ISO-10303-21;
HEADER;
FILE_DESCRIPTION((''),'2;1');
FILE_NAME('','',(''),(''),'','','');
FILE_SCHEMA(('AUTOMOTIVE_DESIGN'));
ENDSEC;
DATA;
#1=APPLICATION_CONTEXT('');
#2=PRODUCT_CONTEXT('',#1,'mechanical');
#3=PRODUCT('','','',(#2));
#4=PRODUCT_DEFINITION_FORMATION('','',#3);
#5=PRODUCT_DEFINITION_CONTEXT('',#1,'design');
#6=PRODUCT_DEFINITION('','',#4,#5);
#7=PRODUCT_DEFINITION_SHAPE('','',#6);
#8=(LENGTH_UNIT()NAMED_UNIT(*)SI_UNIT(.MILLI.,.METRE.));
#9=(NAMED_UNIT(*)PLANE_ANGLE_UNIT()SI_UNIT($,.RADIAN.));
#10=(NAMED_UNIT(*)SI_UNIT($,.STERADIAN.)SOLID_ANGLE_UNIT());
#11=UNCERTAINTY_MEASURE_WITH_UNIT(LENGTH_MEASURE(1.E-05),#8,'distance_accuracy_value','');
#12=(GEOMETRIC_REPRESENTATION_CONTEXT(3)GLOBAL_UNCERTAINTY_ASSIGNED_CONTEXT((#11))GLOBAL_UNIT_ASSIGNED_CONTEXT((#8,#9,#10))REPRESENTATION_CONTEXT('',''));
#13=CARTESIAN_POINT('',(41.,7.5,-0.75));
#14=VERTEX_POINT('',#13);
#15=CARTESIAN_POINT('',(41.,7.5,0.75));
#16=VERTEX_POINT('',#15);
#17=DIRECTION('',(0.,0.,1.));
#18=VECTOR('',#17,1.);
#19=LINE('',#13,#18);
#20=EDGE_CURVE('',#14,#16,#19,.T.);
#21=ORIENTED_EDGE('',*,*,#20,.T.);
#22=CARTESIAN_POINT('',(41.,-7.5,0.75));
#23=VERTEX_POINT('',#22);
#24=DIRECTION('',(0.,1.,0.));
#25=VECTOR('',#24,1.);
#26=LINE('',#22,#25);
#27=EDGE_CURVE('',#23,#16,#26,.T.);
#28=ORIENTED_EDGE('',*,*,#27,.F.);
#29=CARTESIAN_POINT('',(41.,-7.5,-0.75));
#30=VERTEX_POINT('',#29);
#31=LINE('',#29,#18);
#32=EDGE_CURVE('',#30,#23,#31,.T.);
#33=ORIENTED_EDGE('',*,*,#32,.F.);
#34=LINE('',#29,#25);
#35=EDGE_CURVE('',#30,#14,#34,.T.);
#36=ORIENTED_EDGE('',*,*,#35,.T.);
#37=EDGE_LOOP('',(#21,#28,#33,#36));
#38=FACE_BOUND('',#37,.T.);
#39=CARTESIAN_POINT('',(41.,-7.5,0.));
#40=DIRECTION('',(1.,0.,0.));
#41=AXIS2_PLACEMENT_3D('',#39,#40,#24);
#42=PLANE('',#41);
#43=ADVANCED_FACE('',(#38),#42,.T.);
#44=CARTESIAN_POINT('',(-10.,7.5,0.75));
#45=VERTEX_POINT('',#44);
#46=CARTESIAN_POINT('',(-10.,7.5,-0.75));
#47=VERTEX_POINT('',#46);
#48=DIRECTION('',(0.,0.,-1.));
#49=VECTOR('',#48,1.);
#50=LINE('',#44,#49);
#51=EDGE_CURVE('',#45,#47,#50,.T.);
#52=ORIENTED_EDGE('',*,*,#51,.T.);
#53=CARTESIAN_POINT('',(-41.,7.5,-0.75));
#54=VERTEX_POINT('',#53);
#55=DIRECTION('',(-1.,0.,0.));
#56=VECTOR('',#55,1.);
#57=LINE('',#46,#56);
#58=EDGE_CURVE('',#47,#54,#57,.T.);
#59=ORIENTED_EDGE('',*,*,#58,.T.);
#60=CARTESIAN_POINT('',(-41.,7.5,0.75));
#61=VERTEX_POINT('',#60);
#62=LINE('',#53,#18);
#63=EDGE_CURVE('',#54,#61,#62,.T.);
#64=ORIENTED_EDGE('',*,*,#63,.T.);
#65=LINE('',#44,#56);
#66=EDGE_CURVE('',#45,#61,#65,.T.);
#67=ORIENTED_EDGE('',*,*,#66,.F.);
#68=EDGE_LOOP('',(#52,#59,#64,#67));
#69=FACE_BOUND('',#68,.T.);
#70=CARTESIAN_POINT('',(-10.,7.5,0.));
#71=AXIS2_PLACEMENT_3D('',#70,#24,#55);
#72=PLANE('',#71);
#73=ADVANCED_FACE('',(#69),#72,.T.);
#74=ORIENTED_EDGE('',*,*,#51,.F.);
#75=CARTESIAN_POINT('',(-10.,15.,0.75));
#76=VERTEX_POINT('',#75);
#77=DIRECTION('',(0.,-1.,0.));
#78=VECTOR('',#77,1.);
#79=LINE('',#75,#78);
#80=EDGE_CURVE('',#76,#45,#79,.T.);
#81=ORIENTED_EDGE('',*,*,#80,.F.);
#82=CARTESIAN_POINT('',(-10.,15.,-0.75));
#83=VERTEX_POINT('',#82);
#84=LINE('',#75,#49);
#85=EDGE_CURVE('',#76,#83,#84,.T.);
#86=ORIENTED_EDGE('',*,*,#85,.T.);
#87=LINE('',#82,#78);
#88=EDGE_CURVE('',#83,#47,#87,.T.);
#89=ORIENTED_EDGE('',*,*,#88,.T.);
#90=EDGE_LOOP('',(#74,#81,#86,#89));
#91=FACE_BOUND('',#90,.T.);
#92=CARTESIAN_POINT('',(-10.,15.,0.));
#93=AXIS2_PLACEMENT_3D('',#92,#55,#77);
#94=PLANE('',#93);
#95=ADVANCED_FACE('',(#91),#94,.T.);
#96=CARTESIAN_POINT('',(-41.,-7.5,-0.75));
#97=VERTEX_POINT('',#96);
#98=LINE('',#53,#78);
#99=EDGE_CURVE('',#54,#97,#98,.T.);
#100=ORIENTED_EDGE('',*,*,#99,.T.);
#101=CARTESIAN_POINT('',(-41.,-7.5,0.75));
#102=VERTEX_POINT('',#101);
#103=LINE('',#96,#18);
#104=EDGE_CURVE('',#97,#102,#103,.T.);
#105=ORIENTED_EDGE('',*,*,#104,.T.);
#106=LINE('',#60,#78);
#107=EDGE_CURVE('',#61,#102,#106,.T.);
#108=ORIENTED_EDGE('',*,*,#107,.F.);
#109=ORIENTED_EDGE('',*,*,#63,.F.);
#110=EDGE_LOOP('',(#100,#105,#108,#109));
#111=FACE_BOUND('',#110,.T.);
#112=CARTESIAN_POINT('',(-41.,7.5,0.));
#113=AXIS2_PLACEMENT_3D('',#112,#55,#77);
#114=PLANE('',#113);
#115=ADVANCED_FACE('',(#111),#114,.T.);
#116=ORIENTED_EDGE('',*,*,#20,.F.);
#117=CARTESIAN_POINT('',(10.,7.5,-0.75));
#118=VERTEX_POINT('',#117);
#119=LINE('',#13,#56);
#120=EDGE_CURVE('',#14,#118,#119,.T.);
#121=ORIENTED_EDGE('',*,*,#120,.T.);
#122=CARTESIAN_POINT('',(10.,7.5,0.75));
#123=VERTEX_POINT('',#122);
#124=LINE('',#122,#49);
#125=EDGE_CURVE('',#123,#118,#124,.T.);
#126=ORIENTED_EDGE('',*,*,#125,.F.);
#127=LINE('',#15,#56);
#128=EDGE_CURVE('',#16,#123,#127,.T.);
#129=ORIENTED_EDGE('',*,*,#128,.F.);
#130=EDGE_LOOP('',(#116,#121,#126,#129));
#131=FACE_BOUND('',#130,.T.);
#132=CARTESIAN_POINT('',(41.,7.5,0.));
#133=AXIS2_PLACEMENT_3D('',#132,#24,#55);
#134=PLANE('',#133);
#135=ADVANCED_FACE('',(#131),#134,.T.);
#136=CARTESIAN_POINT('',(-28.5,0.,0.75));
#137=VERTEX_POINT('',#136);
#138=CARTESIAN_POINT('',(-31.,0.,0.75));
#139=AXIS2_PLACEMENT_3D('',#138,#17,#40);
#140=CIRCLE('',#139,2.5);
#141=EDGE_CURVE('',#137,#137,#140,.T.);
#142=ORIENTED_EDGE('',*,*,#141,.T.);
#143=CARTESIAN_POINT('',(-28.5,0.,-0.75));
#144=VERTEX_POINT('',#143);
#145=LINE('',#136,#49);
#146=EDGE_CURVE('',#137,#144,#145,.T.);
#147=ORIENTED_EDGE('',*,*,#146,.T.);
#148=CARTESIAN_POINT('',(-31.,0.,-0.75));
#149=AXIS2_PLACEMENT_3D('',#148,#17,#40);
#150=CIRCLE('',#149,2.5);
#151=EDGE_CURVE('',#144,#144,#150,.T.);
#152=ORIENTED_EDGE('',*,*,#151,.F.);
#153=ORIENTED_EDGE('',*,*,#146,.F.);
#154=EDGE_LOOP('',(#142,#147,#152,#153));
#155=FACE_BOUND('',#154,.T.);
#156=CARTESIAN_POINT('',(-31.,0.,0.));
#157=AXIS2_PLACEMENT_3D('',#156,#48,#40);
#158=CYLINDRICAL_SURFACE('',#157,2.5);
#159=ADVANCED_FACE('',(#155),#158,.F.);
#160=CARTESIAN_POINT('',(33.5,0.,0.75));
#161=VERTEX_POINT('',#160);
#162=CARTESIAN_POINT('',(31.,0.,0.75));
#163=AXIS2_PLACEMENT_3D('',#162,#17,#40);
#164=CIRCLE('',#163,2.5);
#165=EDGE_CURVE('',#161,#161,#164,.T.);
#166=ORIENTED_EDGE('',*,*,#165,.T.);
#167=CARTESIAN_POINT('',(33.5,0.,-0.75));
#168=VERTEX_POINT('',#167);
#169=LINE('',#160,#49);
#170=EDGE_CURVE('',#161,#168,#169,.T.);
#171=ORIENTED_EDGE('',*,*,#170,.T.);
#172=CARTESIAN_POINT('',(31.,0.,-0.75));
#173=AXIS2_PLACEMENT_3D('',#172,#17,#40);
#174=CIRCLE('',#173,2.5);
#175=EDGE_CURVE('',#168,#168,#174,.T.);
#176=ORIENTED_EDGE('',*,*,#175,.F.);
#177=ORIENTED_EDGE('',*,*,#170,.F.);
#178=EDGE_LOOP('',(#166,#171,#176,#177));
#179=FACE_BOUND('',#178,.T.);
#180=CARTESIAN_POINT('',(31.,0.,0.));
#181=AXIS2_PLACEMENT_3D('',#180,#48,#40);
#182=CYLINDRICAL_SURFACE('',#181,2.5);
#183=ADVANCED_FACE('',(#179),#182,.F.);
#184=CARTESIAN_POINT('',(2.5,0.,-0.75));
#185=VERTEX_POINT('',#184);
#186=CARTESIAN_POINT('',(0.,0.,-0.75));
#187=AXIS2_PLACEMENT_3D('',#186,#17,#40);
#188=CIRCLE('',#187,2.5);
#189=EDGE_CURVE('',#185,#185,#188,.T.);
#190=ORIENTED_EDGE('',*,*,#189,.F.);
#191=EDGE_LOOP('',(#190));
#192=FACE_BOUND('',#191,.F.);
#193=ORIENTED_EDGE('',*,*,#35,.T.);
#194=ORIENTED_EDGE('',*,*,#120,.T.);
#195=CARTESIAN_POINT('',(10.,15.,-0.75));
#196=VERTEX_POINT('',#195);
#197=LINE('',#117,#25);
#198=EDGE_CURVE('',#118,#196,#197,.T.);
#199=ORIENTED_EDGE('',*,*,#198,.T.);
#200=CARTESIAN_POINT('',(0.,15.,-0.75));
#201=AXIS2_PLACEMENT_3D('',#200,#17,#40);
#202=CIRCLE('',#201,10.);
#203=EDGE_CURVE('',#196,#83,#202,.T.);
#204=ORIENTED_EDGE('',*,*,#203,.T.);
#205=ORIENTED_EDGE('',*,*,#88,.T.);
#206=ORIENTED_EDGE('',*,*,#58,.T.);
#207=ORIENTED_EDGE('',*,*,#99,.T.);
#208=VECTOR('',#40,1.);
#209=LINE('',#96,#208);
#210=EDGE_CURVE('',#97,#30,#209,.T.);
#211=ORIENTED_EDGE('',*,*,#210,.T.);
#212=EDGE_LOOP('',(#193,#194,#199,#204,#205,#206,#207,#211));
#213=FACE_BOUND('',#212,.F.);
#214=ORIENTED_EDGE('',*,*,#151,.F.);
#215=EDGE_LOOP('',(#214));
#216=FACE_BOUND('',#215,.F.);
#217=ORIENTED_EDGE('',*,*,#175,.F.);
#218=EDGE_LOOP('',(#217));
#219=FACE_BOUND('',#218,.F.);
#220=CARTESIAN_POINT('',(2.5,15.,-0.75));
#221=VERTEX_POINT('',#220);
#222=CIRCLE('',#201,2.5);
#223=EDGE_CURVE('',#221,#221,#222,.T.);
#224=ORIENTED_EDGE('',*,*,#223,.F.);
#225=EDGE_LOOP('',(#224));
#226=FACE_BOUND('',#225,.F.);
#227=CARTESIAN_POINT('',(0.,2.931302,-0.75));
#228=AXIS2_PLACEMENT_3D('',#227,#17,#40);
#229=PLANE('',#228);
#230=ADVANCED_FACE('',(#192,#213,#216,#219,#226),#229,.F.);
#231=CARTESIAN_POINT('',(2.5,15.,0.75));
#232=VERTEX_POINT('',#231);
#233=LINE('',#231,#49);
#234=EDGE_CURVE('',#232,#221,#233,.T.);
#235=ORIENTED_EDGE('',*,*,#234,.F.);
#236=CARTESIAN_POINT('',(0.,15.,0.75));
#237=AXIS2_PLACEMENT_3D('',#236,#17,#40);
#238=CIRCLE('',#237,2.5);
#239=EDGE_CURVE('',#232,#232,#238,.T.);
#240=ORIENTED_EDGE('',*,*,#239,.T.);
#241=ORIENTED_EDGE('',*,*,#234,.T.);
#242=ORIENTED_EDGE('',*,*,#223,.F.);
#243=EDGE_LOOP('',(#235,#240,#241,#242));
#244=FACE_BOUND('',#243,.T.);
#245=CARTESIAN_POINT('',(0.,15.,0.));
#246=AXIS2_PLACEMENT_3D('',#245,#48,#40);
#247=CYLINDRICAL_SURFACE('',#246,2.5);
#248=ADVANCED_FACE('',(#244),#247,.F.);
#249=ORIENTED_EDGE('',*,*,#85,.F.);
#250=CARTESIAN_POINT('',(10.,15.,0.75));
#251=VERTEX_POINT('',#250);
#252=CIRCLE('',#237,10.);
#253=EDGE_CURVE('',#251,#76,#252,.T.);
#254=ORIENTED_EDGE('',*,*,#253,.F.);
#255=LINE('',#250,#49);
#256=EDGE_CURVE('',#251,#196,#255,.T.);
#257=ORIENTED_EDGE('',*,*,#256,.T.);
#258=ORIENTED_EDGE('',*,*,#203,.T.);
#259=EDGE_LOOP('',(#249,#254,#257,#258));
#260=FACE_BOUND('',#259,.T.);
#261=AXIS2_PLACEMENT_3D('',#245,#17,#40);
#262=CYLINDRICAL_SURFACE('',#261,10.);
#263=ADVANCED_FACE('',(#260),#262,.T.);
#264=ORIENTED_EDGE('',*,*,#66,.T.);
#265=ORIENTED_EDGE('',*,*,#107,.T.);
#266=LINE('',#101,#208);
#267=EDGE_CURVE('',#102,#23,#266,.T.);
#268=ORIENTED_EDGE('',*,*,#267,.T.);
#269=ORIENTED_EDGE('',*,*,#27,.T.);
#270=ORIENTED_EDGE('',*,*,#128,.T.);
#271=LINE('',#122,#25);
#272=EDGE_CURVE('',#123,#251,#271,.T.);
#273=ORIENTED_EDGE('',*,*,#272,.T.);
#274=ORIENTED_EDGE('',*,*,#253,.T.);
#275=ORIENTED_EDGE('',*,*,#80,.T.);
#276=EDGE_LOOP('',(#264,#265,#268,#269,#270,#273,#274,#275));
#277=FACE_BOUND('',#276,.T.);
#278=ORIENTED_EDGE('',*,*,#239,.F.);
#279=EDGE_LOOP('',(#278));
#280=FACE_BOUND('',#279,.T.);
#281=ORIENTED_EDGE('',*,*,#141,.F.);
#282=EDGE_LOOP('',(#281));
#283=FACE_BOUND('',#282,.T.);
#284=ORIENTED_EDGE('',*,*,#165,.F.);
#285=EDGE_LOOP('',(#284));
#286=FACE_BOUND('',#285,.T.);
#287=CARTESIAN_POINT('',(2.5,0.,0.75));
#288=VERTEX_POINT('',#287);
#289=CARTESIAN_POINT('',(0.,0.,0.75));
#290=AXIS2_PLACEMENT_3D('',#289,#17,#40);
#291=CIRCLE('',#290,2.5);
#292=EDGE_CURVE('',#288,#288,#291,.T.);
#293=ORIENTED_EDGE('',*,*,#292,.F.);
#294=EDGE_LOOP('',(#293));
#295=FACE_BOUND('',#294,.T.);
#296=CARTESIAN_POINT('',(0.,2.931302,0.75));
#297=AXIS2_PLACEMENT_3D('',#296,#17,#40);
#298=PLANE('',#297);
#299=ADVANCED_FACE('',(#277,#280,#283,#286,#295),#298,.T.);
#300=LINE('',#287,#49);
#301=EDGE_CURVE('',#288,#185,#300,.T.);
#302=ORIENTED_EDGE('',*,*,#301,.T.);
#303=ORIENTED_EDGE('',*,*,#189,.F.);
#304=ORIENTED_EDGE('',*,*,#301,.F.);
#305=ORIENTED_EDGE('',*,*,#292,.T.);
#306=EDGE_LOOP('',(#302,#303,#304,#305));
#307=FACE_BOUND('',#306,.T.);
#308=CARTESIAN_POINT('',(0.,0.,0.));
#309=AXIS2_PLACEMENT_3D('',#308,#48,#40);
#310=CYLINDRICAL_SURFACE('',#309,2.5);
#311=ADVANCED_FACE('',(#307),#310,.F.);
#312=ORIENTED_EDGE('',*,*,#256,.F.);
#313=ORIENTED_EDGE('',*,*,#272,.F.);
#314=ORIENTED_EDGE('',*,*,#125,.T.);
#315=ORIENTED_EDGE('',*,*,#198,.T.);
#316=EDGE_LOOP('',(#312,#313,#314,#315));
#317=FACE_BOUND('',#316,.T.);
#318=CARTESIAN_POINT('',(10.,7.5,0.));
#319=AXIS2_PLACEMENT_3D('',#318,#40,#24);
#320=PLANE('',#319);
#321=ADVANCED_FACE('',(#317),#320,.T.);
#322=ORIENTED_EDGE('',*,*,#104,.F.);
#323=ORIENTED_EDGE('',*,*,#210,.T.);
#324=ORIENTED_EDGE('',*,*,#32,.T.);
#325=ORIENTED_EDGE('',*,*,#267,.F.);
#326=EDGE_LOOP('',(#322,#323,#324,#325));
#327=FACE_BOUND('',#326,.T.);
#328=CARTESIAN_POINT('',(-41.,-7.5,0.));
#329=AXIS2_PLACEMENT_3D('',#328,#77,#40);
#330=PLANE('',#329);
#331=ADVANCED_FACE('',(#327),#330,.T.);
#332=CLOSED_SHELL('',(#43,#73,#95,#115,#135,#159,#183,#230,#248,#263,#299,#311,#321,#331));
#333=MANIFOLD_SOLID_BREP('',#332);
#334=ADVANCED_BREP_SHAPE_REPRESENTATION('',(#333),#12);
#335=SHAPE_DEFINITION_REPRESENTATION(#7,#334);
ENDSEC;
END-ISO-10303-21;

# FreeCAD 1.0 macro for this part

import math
import FreeCAD as App
import Part
import Sketcher

V = App.Vector
Q = App.Units.Quantity

doc = App.newDocument("Part")
body = doc.addObject("PartDesign::Body", "Body")

# Sketch on XY plane
sketch1 = body.newObject("Sketcher::SketchObject", "Sketch")
sketch1.AttachmentSupport = (doc.getObject("XY_Plane"), [""])
sketch1.MapMode = "FlatFace"
sketch1.addGeometry([
    Part.LineSegment(V(-10, 7.5, 0), V(-41, 7.5, 0)),  # 0
    Part.LineSegment(V(-41, 7.5, 0), V(-41, -7.5, 0)),  # 1
    Part.LineSegment(V(-41, -7.5, 0), V(41, -7.5, 0)),  # 2
    Part.LineSegment(V(41, -7.5, 0), V(41, 7.5, 0)),  # 3
    Part.LineSegment(V(41, 7.5, 0), V(10, 7.5, 0)),  # 4
    Part.LineSegment(V(10, 7.5, 0), V(10, 15, 0)),  # 5
    Part.ArcOfCircle(Part.Circle(V(0, 15, 0), V(0, 0, 1), 10), math.radians(0), math.radians(180)),  # 6
    Part.LineSegment(V(-10, 15, 0), V(-10, 7.5, 0)),  # 7
    Part.Circle(V(-31, 0, 0), V(0, 0, 1), 2.5),  # 8
    Part.Circle(V(0, 0, 0), V(0, 0, 1), 2.5),  # 9
    Part.Circle(V(31, 0, 0), V(0, 0, 1), 2.5),  # 10
    Part.Circle(V(0, 15, 0), V(0, 0, 1), 2.5),  # 11
], False)
sketch1.addConstraint([
    Sketcher.Constraint("Coincident", 0, 2, 1, 1),
    Sketcher.Constraint("Coincident", 1, 2, 2, 1),
    Sketcher.Constraint("Coincident", 2, 2, 3, 1),
    Sketcher.Constraint("Coincident", 3, 2, 4, 1),
    Sketcher.Constraint("Coincident", 4, 2, 5, 1),
    Sketcher.Constraint("Tangent", 5, 2, 6, 1),
    Sketcher.Constraint("Tangent", 6, 2, 7, 1),
    Sketcher.Constraint("Coincident", 7, 2, 0, 1),
    Sketcher.Constraint("Horizontal", 0),
    Sketcher.Constraint("Vertical", 1),
    Sketcher.Constraint("Horizontal", 2),
    Sketcher.Constraint("Vertical", 3),
    Sketcher.Constraint("Horizontal", 4),
    Sketcher.Constraint("Vertical", 5),
    Sketcher.Constraint("Vertical", 7),
    Sketcher.Constraint("Coincident", 9, 3, -1, 1),
    Sketcher.Constraint("Coincident", 11, 3, 6, 3),
    Sketcher.Constraint("Equal", 8, 9),
    Sketcher.Constraint("Equal", 9, 10),
    Sketcher.Constraint("Equal", 10, 11),
    Sketcher.Constraint("Symmetric", 8, 3, 10, 3, -1, 1),
    Sketcher.Constraint("Symmetric", 0, 2, 2, 2, -1, 1),
    Sketcher.Constraint("Symmetric", 4, 2, 7, 2, -2),
    Sketcher.Constraint("PointOnObject", 8, 3, -1),
    Sketcher.Constraint("Diameter", 8, Q("5 mm")),
    Sketcher.Constraint("Radius", 6, Q("10 mm")),
    Sketcher.Constraint("DistanceX", 0, 2, 0, 1, Q("31 mm")),
    Sketcher.Constraint("DistanceY", 1, 2, 1, 1, Q("15 mm")),
    Sketcher.Constraint("DistanceY", 5, 1, 5, 2, Q("7.5 mm")),
    Sketcher.Constraint("DistanceX", 8, 3, -1, 1, Q("31 mm")),
])
pad1 = body.newObject("PartDesign::Pad", "Pad")
pad1.Profile = sketch1
pad1.Length = 1.5
pad1.Midplane = True

doc.recompute()
